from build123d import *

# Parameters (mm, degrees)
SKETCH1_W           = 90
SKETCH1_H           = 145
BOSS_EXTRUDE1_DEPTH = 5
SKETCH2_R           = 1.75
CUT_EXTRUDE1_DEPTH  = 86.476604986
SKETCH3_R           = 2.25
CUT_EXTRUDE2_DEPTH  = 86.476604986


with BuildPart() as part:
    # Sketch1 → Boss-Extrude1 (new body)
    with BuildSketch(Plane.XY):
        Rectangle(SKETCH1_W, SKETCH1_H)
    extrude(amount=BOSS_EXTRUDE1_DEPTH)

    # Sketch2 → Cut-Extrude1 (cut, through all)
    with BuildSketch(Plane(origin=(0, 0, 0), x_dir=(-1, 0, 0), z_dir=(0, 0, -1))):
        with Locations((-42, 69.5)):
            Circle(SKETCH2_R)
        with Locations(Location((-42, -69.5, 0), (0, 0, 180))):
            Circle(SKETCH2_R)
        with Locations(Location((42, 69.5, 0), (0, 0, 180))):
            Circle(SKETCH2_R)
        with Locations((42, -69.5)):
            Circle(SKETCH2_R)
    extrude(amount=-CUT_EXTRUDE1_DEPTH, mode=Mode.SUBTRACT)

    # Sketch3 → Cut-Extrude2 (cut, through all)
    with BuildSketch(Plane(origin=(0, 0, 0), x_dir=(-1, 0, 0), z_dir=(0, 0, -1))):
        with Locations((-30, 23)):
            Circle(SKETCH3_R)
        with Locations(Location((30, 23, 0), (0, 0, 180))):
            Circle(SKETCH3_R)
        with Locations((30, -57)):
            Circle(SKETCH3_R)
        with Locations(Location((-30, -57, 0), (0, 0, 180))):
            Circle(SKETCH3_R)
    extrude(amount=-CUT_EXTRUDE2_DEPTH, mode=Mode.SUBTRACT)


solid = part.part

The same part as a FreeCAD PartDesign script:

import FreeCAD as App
import Part
import Sketcher

doc = App.newDocument("Part")
params = doc.addObject("Spreadsheet::Sheet", "Params")
for row, (alias, value) in enumerate([
    ("sketch1_width", "90 mm"),
    ("sketch1_height", "145 mm"),
    ("pad1_length", "5 mm"),
    ("sketch2_diameter", "3.5 mm"),
    ("sketch3_diameter", "4.5 mm"),
], start=1):
    params.set(f"A{row}", alias)
    params.set(f"B{row}", "=" + value)
    params.setAlias(f"B{row}", alias)

body = doc.addObject("PartDesign::Body", "Body")

# Sketch on XY plane
sketch1 = body.newObject("Sketcher::SketchObject", "Sketch")
sketch1.AttachmentSupport = (doc.getObject("XY_Plane"), [""])
sketch1.MapMode = "FlatFace"
sketch1.addGeometry(Part.LineSegment(App.Vector(-45, 72, 0), App.Vector(-45, -72, 0)), False)
sketch1.addGeometry(Part.LineSegment(App.Vector(-45, -72, 0), App.Vector(45, -72, 0)), False)
sketch1.addGeometry(Part.LineSegment(App.Vector(45, -72, 0), App.Vector(45, 72, 0)), False)
sketch1.addGeometry(Part.LineSegment(App.Vector(45, 72, 0), App.Vector(-45, 72, 0)), False)
sketch1.addConstraint(Sketcher.Constraint("Coincident", 0, 2, 1, 1))
sketch1.addConstraint(Sketcher.Constraint("Coincident", 1, 2, 2, 1))
sketch1.addConstraint(Sketcher.Constraint("Coincident", 2, 2, 3, 1))
sketch1.addConstraint(Sketcher.Constraint("Coincident", 3, 2, 0, 1))
sketch1.addConstraint(Sketcher.Constraint("Vertical", 0))
sketch1.addConstraint(Sketcher.Constraint("Horizontal", 1))
sketch1.addConstraint(Sketcher.Constraint("Vertical", 2))
sketch1.addConstraint(Sketcher.Constraint("Horizontal", 3))
sketch1.addConstraint(Sketcher.Constraint("Symmetric", 0, 2, 2, 2, -1, 1))
sketch1.addConstraint(Sketcher.Constraint("DistanceX", 1, 1, 1, 2, 90.0))
sketch1.addConstraint(Sketcher.Constraint("DistanceY", 0, 2, 0, 1, 145.0))
sketch1.setExpression("Constraints[9]", "Params.sketch1_width")
sketch1.setExpression("Constraints[10]", "Params.sketch1_height")
pad1 = body.newObject("PartDesign::Pad", "Pad")
pad1.Profile = sketch1
pad1.setExpression("Length", "Params.pad1_length")

# Sketch on XY plane
sketch2 = body.newObject("Sketcher::SketchObject", "Sketch001")
sketch2.AttachmentSupport = (doc.getObject("XY_Plane"), [""])
sketch2.MapMode = "FlatFace"
sketch2.addGeometry(Part.Circle(App.Vector(42, 69.5, 0), App.Vector(0, 0, 1), 1.8), False)
sketch2.addGeometry(Part.Circle(App.Vector(42, -69.5, 0), App.Vector(0, 0, 1), 1.8), False)
sketch2.addGeometry(Part.Circle(App.Vector(-42, 69.5, 0), App.Vector(0, 0, 1), 1.8), False)
sketch2.addGeometry(Part.Circle(App.Vector(-42, -69.5, 0), App.Vector(0, 0, 1), 1.8), False)
sketch2.addConstraint(Sketcher.Constraint("Equal", 0, 1))
sketch2.addConstraint(Sketcher.Constraint("Equal", 1, 2))
sketch2.addConstraint(Sketcher.Constraint("Equal", 2, 3))
sketch2.addConstraint(Sketcher.Constraint("Symmetric", 1, 3, 2, 3, -1, 1))
sketch2.addConstraint(Sketcher.Constraint("Symmetric", 0, 3, 3, 3, -1, 1))
sketch2.addConstraint(Sketcher.Constraint("Symmetric", 0, 3, 2, 3, -2))
sketch2.addConstraint(Sketcher.Constraint("Diameter", 0, 3.5))
sketch2.addConstraint(Sketcher.Constraint("DistanceX", -1, 1, 0, 3, 42.0))
sketch2.addConstraint(Sketcher.Constraint("DistanceY", 1, 3, 0, 3, 139.0))
sketch2.setExpression("Constraints[6]", "Params.sketch2_diameter")
pocket1 = body.newObject("PartDesign::Pocket", "Pocket")
pocket1.Profile = sketch2
pocket1.Type = "ThroughAll"
pocket1.Reversed = True

# Sketch on XY plane
sketch3 = body.newObject("Sketcher::SketchObject", "Sketch002")
sketch3.AttachmentSupport = (doc.getObject("XY_Plane"), [""])
sketch3.MapMode = "FlatFace"
sketch3.addGeometry(Part.Circle(App.Vector(30, 23, 0), App.Vector(0, 0, 1), 2.2), False)
sketch3.addGeometry(Part.Circle(App.Vector(-30, 23, 0), App.Vector(0, 0, 1), 2.2), False)
sketch3.addGeometry(Part.Circle(App.Vector(-30, -57, 0), App.Vector(0, 0, 1), 2.2), False)
sketch3.addGeometry(Part.Circle(App.Vector(30, -57, 0), App.Vector(0, 0, 1), 2.2), False)
sketch3.addConstraint(Sketcher.Constraint("Equal", 0, 1))
sketch3.addConstraint(Sketcher.Constraint("Equal", 1, 2))
sketch3.addConstraint(Sketcher.Constraint("Equal", 2, 3))
sketch3.addConstraint(Sketcher.Constraint("Symmetric", 0, 3, 1, 3, -2))
sketch3.addConstraint(Sketcher.Constraint("Symmetric", 2, 3, 3, 3, -2))
sketch3.addConstraint(Sketcher.Constraint("Vertical", 1, 3, 2, 3))
sketch3.addConstraint(Sketcher.Constraint("Diameter", 0, 4.5))
sketch3.addConstraint(Sketcher.Constraint("DistanceX", -1, 1, 0, 3, 30.0))
sketch3.addConstraint(Sketcher.Constraint("DistanceY", -1, 1, 0, 3, 23.0))
sketch3.addConstraint(Sketcher.Constraint("DistanceY", 2, 3, -1, 1, 57.0))
sketch3.setExpression("Constraints[6]", "Params.sketch3_diameter")
pocket2 = body.newObject("PartDesign::Pocket", "Pocket001")
pocket2.Profile = sketch3
pocket2.Type = "ThroughAll"
pocket2.Reversed = True

doc.recompute()
